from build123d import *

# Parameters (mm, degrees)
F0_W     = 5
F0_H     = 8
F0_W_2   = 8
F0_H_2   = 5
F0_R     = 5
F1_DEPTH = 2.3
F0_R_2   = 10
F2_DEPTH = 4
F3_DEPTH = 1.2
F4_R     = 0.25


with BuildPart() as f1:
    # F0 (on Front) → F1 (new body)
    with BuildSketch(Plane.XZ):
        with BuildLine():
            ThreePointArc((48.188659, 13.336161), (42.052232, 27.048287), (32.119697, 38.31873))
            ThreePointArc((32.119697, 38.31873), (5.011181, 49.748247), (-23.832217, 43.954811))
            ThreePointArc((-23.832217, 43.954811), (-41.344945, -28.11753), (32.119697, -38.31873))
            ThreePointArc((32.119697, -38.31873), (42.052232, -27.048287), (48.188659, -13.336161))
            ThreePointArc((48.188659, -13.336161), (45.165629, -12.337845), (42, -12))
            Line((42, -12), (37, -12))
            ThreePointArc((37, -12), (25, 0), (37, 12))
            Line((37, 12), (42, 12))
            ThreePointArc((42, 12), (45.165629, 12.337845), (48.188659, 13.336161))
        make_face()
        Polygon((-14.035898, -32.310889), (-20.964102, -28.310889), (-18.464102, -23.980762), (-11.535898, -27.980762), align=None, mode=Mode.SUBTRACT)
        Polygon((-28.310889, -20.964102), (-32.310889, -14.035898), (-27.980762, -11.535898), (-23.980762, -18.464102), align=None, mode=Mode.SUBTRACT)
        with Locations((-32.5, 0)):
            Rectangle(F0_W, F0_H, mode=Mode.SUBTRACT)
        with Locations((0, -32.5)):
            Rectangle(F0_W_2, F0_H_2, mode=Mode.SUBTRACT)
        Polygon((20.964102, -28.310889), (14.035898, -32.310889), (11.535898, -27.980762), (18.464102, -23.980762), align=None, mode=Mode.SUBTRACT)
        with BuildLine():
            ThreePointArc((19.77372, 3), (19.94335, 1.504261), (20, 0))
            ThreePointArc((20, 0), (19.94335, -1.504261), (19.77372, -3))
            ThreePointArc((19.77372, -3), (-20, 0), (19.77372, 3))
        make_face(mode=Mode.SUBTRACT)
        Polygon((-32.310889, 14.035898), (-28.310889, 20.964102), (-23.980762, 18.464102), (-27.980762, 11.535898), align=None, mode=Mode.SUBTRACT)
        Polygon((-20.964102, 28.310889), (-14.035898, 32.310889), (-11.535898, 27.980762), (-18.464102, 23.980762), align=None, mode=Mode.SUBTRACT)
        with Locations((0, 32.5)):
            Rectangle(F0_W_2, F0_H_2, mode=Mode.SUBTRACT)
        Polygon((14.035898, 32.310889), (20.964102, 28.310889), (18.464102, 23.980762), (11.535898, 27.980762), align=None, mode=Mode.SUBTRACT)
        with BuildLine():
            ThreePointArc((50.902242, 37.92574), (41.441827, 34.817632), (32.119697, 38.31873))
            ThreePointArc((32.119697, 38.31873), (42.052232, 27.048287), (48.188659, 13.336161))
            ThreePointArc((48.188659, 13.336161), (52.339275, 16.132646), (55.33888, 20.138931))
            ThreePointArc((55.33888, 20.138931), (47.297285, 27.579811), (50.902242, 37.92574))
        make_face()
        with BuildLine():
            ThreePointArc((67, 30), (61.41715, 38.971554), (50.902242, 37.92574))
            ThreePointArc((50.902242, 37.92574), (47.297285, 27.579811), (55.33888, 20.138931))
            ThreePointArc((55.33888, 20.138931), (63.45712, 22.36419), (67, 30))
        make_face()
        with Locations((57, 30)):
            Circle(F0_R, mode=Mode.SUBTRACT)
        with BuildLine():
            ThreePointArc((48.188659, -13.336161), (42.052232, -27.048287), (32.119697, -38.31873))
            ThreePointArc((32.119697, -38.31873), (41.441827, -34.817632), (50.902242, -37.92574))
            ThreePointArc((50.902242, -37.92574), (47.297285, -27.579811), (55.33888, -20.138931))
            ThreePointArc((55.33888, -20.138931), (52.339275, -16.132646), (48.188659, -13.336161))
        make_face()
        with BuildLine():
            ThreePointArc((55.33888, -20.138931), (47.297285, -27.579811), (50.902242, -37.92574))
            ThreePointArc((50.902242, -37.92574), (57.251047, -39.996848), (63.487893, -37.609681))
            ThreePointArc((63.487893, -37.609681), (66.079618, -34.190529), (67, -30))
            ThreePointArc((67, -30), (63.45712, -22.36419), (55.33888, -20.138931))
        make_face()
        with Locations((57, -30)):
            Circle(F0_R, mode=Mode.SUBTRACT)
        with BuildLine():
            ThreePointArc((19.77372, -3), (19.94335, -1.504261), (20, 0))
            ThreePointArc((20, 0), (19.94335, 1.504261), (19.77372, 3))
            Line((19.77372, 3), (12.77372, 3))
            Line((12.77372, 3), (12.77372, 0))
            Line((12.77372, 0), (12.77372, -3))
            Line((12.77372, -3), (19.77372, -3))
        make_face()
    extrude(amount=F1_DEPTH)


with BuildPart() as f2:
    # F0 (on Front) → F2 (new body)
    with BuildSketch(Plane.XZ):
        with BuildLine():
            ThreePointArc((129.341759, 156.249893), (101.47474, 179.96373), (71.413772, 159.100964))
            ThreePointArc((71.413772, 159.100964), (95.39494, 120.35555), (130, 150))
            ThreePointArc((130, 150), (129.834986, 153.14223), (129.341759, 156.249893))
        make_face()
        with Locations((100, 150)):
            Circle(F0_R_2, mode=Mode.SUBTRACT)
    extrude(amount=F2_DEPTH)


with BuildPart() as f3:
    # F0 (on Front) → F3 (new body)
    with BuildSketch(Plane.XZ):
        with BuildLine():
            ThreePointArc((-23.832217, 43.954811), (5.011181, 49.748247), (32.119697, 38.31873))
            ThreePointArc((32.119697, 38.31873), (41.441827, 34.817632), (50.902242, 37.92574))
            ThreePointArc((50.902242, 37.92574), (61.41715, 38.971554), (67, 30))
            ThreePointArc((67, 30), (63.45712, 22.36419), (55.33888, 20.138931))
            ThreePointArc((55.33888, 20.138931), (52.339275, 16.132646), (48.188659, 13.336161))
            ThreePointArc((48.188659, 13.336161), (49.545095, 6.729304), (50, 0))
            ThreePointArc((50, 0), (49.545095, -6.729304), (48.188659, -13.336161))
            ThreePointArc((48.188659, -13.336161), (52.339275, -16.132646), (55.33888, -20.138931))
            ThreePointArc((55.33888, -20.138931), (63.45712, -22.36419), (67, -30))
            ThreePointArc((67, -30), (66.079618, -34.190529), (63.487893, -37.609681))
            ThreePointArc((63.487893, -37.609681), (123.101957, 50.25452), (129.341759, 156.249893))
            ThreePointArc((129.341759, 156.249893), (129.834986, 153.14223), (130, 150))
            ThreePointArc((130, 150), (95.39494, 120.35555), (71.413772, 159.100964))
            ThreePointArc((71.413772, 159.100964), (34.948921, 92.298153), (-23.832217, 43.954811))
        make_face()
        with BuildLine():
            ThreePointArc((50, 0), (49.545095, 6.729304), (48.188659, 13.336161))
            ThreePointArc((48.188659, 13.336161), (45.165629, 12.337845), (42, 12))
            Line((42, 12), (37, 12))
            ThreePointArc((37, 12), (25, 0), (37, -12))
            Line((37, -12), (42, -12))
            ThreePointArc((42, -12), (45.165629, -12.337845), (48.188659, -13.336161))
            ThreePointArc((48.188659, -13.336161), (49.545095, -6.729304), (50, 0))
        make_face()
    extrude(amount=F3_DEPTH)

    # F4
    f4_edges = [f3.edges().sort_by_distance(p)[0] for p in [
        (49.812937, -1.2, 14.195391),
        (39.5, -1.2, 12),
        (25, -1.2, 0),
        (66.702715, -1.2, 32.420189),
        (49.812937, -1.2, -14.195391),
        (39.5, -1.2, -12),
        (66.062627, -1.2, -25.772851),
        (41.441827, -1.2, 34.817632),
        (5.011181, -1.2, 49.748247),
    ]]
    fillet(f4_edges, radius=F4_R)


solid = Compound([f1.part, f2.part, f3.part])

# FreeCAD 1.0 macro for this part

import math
import FreeCAD as App
import Part
import Sketcher
from FreeCAD import Vector
Q = App.Units.Quantity


def edges_at(feature, points):
    """Names of the edges that pass closest to the given points."""
    edges = feature.Shape.Edges
    near = lambda p: min(range(len(edges)), key=lambda i: edges[i].distToShape(Part.Vertex(*p))[0])
    return sorted({f"Edge{near(p) + 1}" for p in points})


def add_polygon(sketch, points):
    """Adds a closed chain of lines whose ends are joined by coincident constraints."""
    first, n = sketch.GeometryCount, len(points)
    for a, b in zip(points, points[1:] + points[:1]):
        sketch.addGeometry(Part.LineSegment(App.Vector(*a, 0), App.Vector(*b, 0)), False)
    for i in range(n):
        sketch.addConstraint(Sketcher.Constraint("Coincident", first + i, 2, first + (i + 1) % n, 1))

doc = App.newDocument("Part")
params = doc.addObject("Spreadsheet::Sheet", "Params")
for row, (alias, value) in enumerate([
    ("sketch1_diameter", "10 mm"),
    ("sketch1_radius", "15.000001 mm"),
    ("sketch1_radius2", "10.000001 mm"),
    ("sketch1_radius3", "49.999999 mm"),
    ("sketch1_radius4", "12 mm"),
    ("pad1_length", "2.3 mm"),
    ("sketch2_diameter", "20 mm"),
    ("sketch2_radius", "30 mm"),
    ("pad2_length", "4 mm"),
    ("sketch3_radius", "49.999999 mm"),
    ("sketch3_radius2", "15.000001 mm"),
    ("sketch3_radius3", "10.000001 mm"),
    ("sketch3_radius4", "12 mm"),
    ("sketch3_radius5", "30 mm"),
    ("pad3_length", "1.2 mm"),
    ("fillet_radius", "0.25 mm"),
], start=1):
    params.set(f"A{row}", alias)
    params.set(f"B{row}", "=" + value)
    params.setAlias(f"B{row}", alias)

body = doc.addObject("PartDesign::Body", "Body")

# Sketch on XZ plane
sketch1 = doc.addObject("Sketcher::SketchObject", "Sketch")
body.addObject(sketch1)
sketch1.AttachmentSupport = (doc.XZ_Plane, [""])
sketch1.MapMode = "FlatFace"
sketch1.addGeometry(Part.ArcOfCircle(Part.Circle(Vector(41.999999, 27.000003, 0), Vector(0, 0, 1), 15.000003), math.radians(-89.999997), math.radians(-65.633163)), False)  # 0
sketch1.addGeometry(Part.ArcOfCircle(Part.Circle(Vector(41.999999, 27, 0), Vector(0, 0, 1), 15.000001), math.radians(-65.633159), math.radians(-27.219758)), False)  # 1
sketch1.addGeometry(Part.ArcOfCircle(Part.Circle(Vector(56.999999, 30.000001, 0), Vector(0, 0, 1), 10.000001), math.radians(-99.561834), math.radians(-0.000005)), False)  # 2
sketch1.addGeometry(Part.ArcOfCircle(Part.Circle(Vector(56.999999, 29.999999, 0), Vector(0, 0, 1), 10.000001), math.radians(0.000003), math.radians(127.573288)), False)  # 3
sketch1.addGeometry(Part.ArcOfCircle(Part.Circle(Vector(41.755605, 49.81435, 0), Vector(0, 0, 1), 15.000001), math.radians(-129.970557), math.radians(-52.42671)), False)  # 4
sketch1.addGeometry(Part.ArcOfCircle(Part.Circle(Vector(0, 0.000001, 0), Vector(0, 0, 1), 49.999999), math.radians(50.029437), math.radians(118.466468)), False)  # 5
sketch1.addGeometry(Part.ArcOfCircle(Part.Circle(Vector(0, 0, 0), Vector(0, 0, 1), 50), math.radians(118.466467), math.radians(309.970562)), False)  # 6
sketch1.addGeometry(Part.ArcOfCircle(Part.Circle(Vector(41.755605, -49.81435, 0), Vector(0, 0, 1), 15.000001), math.radians(52.42671), math.radians(129.970557)), False)  # 7
sketch1.addGeometry(Part.ArcOfCircle(Part.Circle(Vector(57, -29.999998, 0), Vector(0, 0, 1), 10.000002), math.radians(-127.573283), math.radians(-49.549624)), False)  # 8
sketch1.addGeometry(Part.ArcOfCircle(Part.Circle(Vector(56.999998, -29.999999, 0), Vector(0, 0, 1), 10.000002), math.radians(-49.549612), math.radians(-0.000005)), False)  # 9
sketch1.addGeometry(Part.ArcOfCircle(Part.Circle(Vector(56.999999, -30.000001, 0), Vector(0, 0, 1), 10.000001), math.radians(0.000005), math.radians(99.561834)), False)  # 10
sketch1.addGeometry(Part.ArcOfCircle(Part.Circle(Vector(41.999999, -27, 0), Vector(0, 0, 1), 15.000001), math.radians(27.219758), math.radians(65.633159)), False)  # 11
sketch1.addGeometry(Part.ArcOfCircle(Part.Circle(Vector(41.999999, -27.000003, 0), Vector(0, 0, 1), 15.000003), math.radians(65.633163), math.radians(89.999997)), False)  # 12
sketch1.addGeometry(Part.LineSegment(Vector(42, -12, 0), Vector(37, -12, 0)), False)  # 13
sketch1.addGeometry(Part.ArcOfCircle(Part.Circle(Vector(37, 0, 0), Vector(0, 0, 1), 12), math.radians(90), math.radians(270)), False)  # 14
sketch1.addGeometry(Part.LineSegment(Vector(37, 12, 0), Vector(42, 12, 0)), False)  # 15
add_polygon(sketch1, [(-11.535898, -27.980762), (-14.035898, -32.310889), (-20.964102, -28.310889), (-18.464102, -23.980762)])  # lines 16-19
add_polygon(sketch1, [(4, -35), (-4, -35), (-4, -30), (4, -30)])  # lines 20-23
add_polygon(sketch1, [(-23.980762, -18.464102), (-28.310889, -20.964102), (-32.310889, -14.035898), (-27.980762, -11.535898)])  # lines 24-27
add_polygon(sketch1, [(18.464102, -23.980762), (20.964102, -28.310889), (14.035898, -32.310889), (11.535898, -27.980762)])  # lines 28-31
sketch1.addGeometry(Part.Circle(Vector(57, -30, 0), Vector(0, 0, 1), 5), False)  # 32
add_polygon(sketch1, [(-30, -4), (-35, -4), (-35, 4), (-30, 4)])  # lines 33-36
add_polygon(sketch1, [(-27.980762, 11.535898), (-32.310889, 14.035898), (-28.310889, 20.964102), (-23.980762, 18.464102)])  # lines 37-40
sketch1.addGeometry(Part.ArcOfCircle(Part.Circle(Vector(0, 0, 0), Vector(0, 0, 1), 20), math.radians(8.626927), math.radians(351.373073)), False)  # 41
sketch1.addGeometry(Part.LineSegment(Vector(19.77372, 3, 0), Vector(12.77372, 3, 0)), False)  # 42
sketch1.addGeometry(Part.LineSegment(Vector(12.77372, 3, 0), Vector(12.77372, -3, 0)), False)  # 43
sketch1.addGeometry(Part.LineSegment(Vector(12.77372, -3, 0), Vector(19.77372, -3, 0)), False)  # 44
add_polygon(sketch1, [(-18.464102, 23.980762), (-20.964102, 28.310889), (-14.035898, 32.310889), (-11.535898, 27.980762)])  # lines 45-48
add_polygon(sketch1, [(4, 30), (-4, 30), (-4, 35), (4, 35)])  # lines 49-52
add_polygon(sketch1, [(11.535898, 27.980762), (14.035898, 32.310889), (20.964102, 28.310889), (18.464102, 23.980762)])  # lines 53-56
sketch1.addGeometry(Part.Circle(Vector(57, 30, 0), Vector(0, 0, 1), 5), False)  # 57
sketch1.addConstraint([
    Sketcher.Constraint("Tangent", 0, 2, 1, 1),
    Sketcher.Constraint("Coincident", 1, 2, 2, 1),
    Sketcher.Constraint("Tangent", 2, 2, 3, 1),
    Sketcher.Constraint("Tangent", 3, 2, 4, 2),
    Sketcher.Constraint("Tangent", 4, 1, 5, 1),
    Sketcher.Constraint("Tangent", 5, 2, 6, 1),
    Sketcher.Constraint("Tangent", 6, 2, 7, 2),
    Sketcher.Constraint("Tangent", 7, 1, 8, 1),
    Sketcher.Constraint("Tangent", 8, 2, 9, 1),
    Sketcher.Constraint("Tangent", 9, 2, 10, 1),
    Sketcher.Constraint("Coincident", 10, 2, 11, 1),
    Sketcher.Constraint("Tangent", 11, 2, 12, 1),
    Sketcher.Constraint("Tangent", 12, 2, 13, 1),
    Sketcher.Constraint("Tangent", 13, 2, 14, 2),
    Sketcher.Constraint("Tangent", 14, 1, 15, 1),
    Sketcher.Constraint("Tangent", 15, 2, 0, 1),
    Sketcher.Constraint("Coincident", 41, 1, 42, 1),
    Sketcher.Constraint("Coincident", 42, 2, 43, 1),
    Sketcher.Constraint("Coincident", 43, 2, 44, 1),
    Sketcher.Constraint("Coincident", 44, 2, 41, 2),
    Sketcher.Constraint("Horizontal", 13),
    Sketcher.Constraint("Horizontal", 15),
    Sketcher.Constraint("Horizontal", 20),
    Sketcher.Constraint("Vertical", 21),
    Sketcher.Constraint("Horizontal", 22),
    Sketcher.Constraint("Vertical", 23),
    Sketcher.Constraint("Horizontal", 33),
    Sketcher.Constraint("Vertical", 34),
    Sketcher.Constraint("Horizontal", 35),
    Sketcher.Constraint("Vertical", 36),
    Sketcher.Constraint("Horizontal", 42),
    Sketcher.Constraint("Vertical", 43),
    Sketcher.Constraint("Horizontal", 44),
    Sketcher.Constraint("Horizontal", 49),
    Sketcher.Constraint("Vertical", 50),
    Sketcher.Constraint("Horizontal", 51),
    Sketcher.Constraint("Vertical", 52),
    Sketcher.Constraint("Coincident", 5, 3, -1, 1),
    Sketcher.Constraint("Coincident", 41, 3, -1, 1),
    Sketcher.Constraint("Coincident", 10, 3, 8, 3),
    Sketcher.Constraint("Coincident", 32, 3, 8, 3),
    Sketcher.Constraint("Coincident", 57, 3, 2, 3),
    Sketcher.Constraint("Equal", 2, 3),
    Sketcher.Constraint("Equal", 1, 4),
    Sketcher.Constraint("Equal", 5, 6),
    Sketcher.Constraint("Equal", 4, 7),
    Sketcher.Constraint("Equal", 3, 8),
    Sketcher.Constraint("Equal", 7, 11),
    Sketcher.Constraint("Equal", 0, 12),
    Sketcher.Constraint("Equal", 32, 57),
    Sketcher.Constraint("Symmetric", 28, 2, 45, 2, -1, 1),
    Sketcher.Constraint("Symmetric", 29, 2, 46, 2, -1, 1),
    Sketcher.Constraint("Symmetric", 30, 2, 47, 2, -1, 1),
    Sketcher.Constraint("Symmetric", 31, 2, 48, 2, -1, 1),
    Sketcher.Constraint("Symmetric", 22, 2, 49, 2, -1, 1),
    Sketcher.Constraint("Symmetric", 20, 2, 51, 2, -1, 1),
    Sketcher.Constraint("Symmetric", 16, 2, 53, 2, -1, 1),
    Sketcher.Constraint("Symmetric", 17, 2, 54, 2, -1, 1),
    Sketcher.Constraint("Symmetric", 18, 2, 55, 2, -1, 1),
    Sketcher.Constraint("Symmetric", 19, 2, 56, 2, -1, 1),
    Sketcher.Constraint("Symmetric", 17, 2, 28, 2, -2),
    Sketcher.Constraint("Symmetric", 16, 2, 29, 2, -2),
    Sketcher.Constraint("Symmetric", 19, 2, 30, 2, -2),
    Sketcher.Constraint("Symmetric", 18, 2, 31, 2, -2),
    Sketcher.Constraint("Symmetric", 2, 3, 8, 3, -1),
    Sketcher.Constraint("Symmetric", 0, 3, 11, 3, -1),
    Sketcher.Constraint("Symmetric", 0, 2, 11, 2, -1),
    Sketcher.Constraint("Symmetric", 25, 2, 37, 2, -1),
    Sketcher.Constraint("Symmetric", 24, 2, 38, 2, -1),
    Sketcher.Constraint("Symmetric", 27, 2, 39, 2, -1),
    Sketcher.Constraint("Symmetric", 26, 2, 40, 2, -1),
    Sketcher.Constraint("Perpendicular", 16, 17),
    Sketcher.Constraint("Perpendicular", 17, 18),
    Sketcher.Constraint("Perpendicular", 18, 19),
    Sketcher.Constraint("Perpendicular", 24, 25),
    Sketcher.Constraint("Perpendicular", 25, 26),
    Sketcher.Constraint("Perpendicular", 26, 27),
    Sketcher.Constraint("Parallel", 27, 28),
    Sketcher.Constraint("Horizontal", 57, 3, 2, 2),
    Sketcher.Constraint("Horizontal", 32, 3, 9, 2),
    Sketcher.Constraint("Horizontal", 9, 2, 21, 2),
    Sketcher.Constraint("Vertical", 41, 1, 44, 2),
    Sketcher.Constraint("Vertical", 21, 2, 49, 2),
    Sketcher.Constraint("Equal", 15, 33),
    Sketcher.Constraint("Equal", 35, 21),
    Sketcher.Constraint("Equal", 51, 34),
    Sketcher.Constraint("Equal", 18, 24),
    Sketcher.Constraint("Equal", 19, 25),
    Sketcher.Constraint("Diameter", 32, Q("10 mm")),
    Sketcher.Constraint("Radius", 1, Q("15.000001 mm")),
    Sketcher.Constraint("Radius", 2, Q("10.000001 mm")),
    Sketcher.Constraint("Radius", 5, Q("49.999999 mm")),
    Sketcher.Constraint("Radius", 14, Q("12 mm")),
    Sketcher.Constraint("Radius", 41, Q("20 mm")),
    Sketcher.Constraint("DistanceX", 13, 2, 13, 1, Q("5 mm")),
    Sketcher.Constraint("DistanceX", 20, 2, 20, 1, Q("8 mm")),
    Sketcher.Constraint("DistanceX", 42, 2, 42, 1, Q("7 mm")),
    Sketcher.Constraint("DistanceY", 43, 2, 43, 1, Q("6 mm")),
    Sketcher.Constraint("Angle", 16, Q("-120 deg")),
    Sketcher.Constraint("Distance", 16, Q("5 mm")),
    Sketcher.Constraint("Distance", 17, Q("8.000001 mm")),
    Sketcher.Constraint("DistanceX", -1, 1, 0, 3, Q("41.999999 mm")),
    Sketcher.Constraint("DistanceX", -1, 1, 2, 3, Q("56.999999 mm")),
    Sketcher.Constraint("DistanceY", -1, 1, 2, 3, Q("30.000001 mm")),
    Sketcher.Constraint("DistanceX", 33, 2, -1, 1, Q("35 mm")),
    Sketcher.Constraint("DistanceY", 33, 2, -1, 1, Q("4 mm")),
    Sketcher.Constraint("DistanceX", -1, 1, 0, 2, Q("48.188659 mm")),
    Sketcher.Constraint("DistanceY", -1, 1, 5, 2, Q("43.954811 mm")),
    Sketcher.Constraint("DistanceY", 8, 2, -1, 1, Q("37.609681 mm")),
    Sketcher.Constraint("DistanceY", 16, 2, -1, 1, Q("32.310889 mm")),
    Sketcher.Constraint("DistanceX", 24, 2, -1, 1, Q("28.310889 mm")),
    Sketcher.Constraint("DistanceX", 16, 2, -1, 1, Q("14.035898 mm")),
    Sketcher.Constraint("DistanceY", 24, 2, -1, 1, Q("20.964102 mm")),
])
sketch1.setExpression("Constraints[124]", "Params.sketch1_diameter")
sketch1.setExpression("Constraints[125]", "Params.sketch1_radius")
sketch1.setExpression("Constraints[126]", "Params.sketch1_radius2")
sketch1.setExpression("Constraints[127]", "Params.sketch1_radius3")
sketch1.setExpression("Constraints[128]", "Params.sketch1_radius4")
pad1 = doc.addObject("PartDesign::Pad", "Pad")
body.addObject(pad1)
pad1.Profile = sketch1
pad1.setExpression("Length", "Params.pad1_length")
body2 = doc.addObject("PartDesign::Body", "Body001")

# Sketch on XZ plane
sketch2 = doc.addObject("Sketcher::SketchObject", "Sketch001")
body2.addObject(sketch2)
sketch2.AttachmentSupport = (doc.getObject("XZ_Plane001"), [""])
sketch2.MapMode = "FlatFace"
sketch2.addGeometry([
    Part.ArcOfCircle(Part.Circle(Vector(100, 150, 0), Vector(0, 0, 1), 30), math.radians(12.024491), math.radians(162.340146)),
    Part.ArcOfCircle(Part.Circle(Vector(100, 150, 0), Vector(0, 0, 1), 30), math.radians(162.340146), math.radians(360)),
    Part.ArcOfCircle(Part.Circle(Vector(100.000022, 150.000001, 0), Vector(0, 0, 1), 29.999978), math.radians(-0.000002), math.radians(12.024497)),
    Part.Circle(Vector(100, 150, 0), Vector(0, 0, 1), 10),
], False)
sketch2.addConstraint([
    Sketcher.Constraint("Coincident", 0, 2, 1, 1),
    Sketcher.Constraint("Coincident", 1, 2, 2, 1),
    Sketcher.Constraint("Coincident", 2, 2, 0, 1),
    Sketcher.Constraint("Coincident", 1, 3, 0, 3),
    Sketcher.Constraint("Coincident", 3, 3, 0, 3),
    Sketcher.Constraint("Diameter", 3, Q("20 mm")),
    Sketcher.Constraint("Radius", 0, Q("30 mm")),
    Sketcher.Constraint("DistanceX", -1, 1, 0, 3, Q("100 mm")),
    Sketcher.Constraint("DistanceY", -1, 1, 0, 3, Q("150 mm")),
    Sketcher.Constraint("DistanceY", -1, 1, 2, 3, Q("150.000001 mm")),
    Sketcher.Constraint("DistanceY", -1, 1, 1, 2, Q("150 mm")),
    Sketcher.Constraint("DistanceX", -1, 1, 0, 2, Q("71.413772 mm")),
    Sketcher.Constraint("DistanceX", -1, 1, 2, 2, Q("129.341759 mm")),
])
sketch2.setExpression("Constraints[5]", "Params.sketch2_diameter")
sketch2.setExpression("Constraints[6]", "Params.sketch2_radius")
pad2 = doc.addObject("PartDesign::Pad", "Pad001")
body2.addObject(pad2)
pad2.Profile = sketch2
pad2.setExpression("Length", "Params.pad2_length")
body3 = doc.addObject("PartDesign::Body", "Body002")

# Sketch on XZ plane
sketch3 = doc.addObject("Sketcher::SketchObject", "Sketch002")
body3.addObject(sketch3)
sketch3.AttachmentSupport = (doc.getObject("XZ_Plane002"), [""])
sketch3.MapMode = "FlatFace"
sketch3.addGeometry([
    Part.ArcOfCircle(Part.Circle(Vector(0, 0.000001, 0), Vector(0, 0, 1), 49.999999), math.radians(50.029437), math.radians(118.466468)),  # 0
    Part.ArcOfCircle(Part.Circle(Vector(41.755605, 49.81435, 0), Vector(0, 0, 1), 15.000001), math.radians(-129.970557), math.radians(-52.42671)),  # 1
    Part.ArcOfCircle(Part.Circle(Vector(56.999999, 29.999999, 0), Vector(0, 0, 1), 10.000001), math.radians(0.000003), math.radians(127.573288)),  # 2
    Part.ArcOfCircle(Part.Circle(Vector(56.999999, 30.000001, 0), Vector(0, 0, 1), 10.000001), math.radians(-99.561834), math.radians(-0.000005)),  # 3
    Part.ArcOfCircle(Part.Circle(Vector(41.999999, 27, 0), Vector(0, 0, 1), 15.000001), math.radians(-65.633159), math.radians(-27.219758)),  # 4
    Part.ArcOfCircle(Part.Circle(Vector(41.999999, 27.000003, 0), Vector(0, 0, 1), 15.000003), math.radians(-89.999997), math.radians(-65.633163)),  # 5
    Part.LineSegment(Vector(42, 12, 0), Vector(37, 12, 0)),  # 6
    Part.ArcOfCircle(Part.Circle(Vector(37, 0, 0), Vector(0, 0, 1), 12), math.radians(90), math.radians(270)),  # 7
    Part.LineSegment(Vector(37, -12, 0), Vector(42, -12, 0)),  # 8
    Part.ArcOfCircle(Part.Circle(Vector(41.999999, -27.000003, 0), Vector(0, 0, 1), 15.000003), math.radians(65.633163), math.radians(89.999997)),  # 9
    Part.ArcOfCircle(Part.Circle(Vector(41.999999, -27, 0), Vector(0, 0, 1), 15.000001), math.radians(27.219758), math.radians(65.633159)),  # 10
    Part.ArcOfCircle(Part.Circle(Vector(56.999999, -30.000001, 0), Vector(0, 0, 1), 10.000001), math.radians(0.000005), math.radians(99.561834)),  # 11
    Part.ArcOfCircle(Part.Circle(Vector(56.999998, -29.999999, 0), Vector(0, 0, 1), 10.000002), math.radians(-49.549612), math.radians(-0.000005)),  # 12
    Part.ArcOfCircle(Part.Circle(Vector(-66.269966, 114.583936, 0), Vector(0, 0, 1), 199.999997), math.radians(-49.549617), math.radians(12.024492)),  # 13
    Part.ArcOfCircle(Part.Circle(Vector(100.000022, 150.000001, 0), Vector(0, 0, 1), 29.999978), math.radians(-0.000002), math.radians(12.024497)),  # 14
    Part.ArcOfCircle(Part.Circle(Vector(100, 150, 0), Vector(0, 0, 1), 30), math.radians(162.340146), math.radians(360)),  # 15
    Part.ArcOfCircle(Part.Circle(Vector(-119.161093, 219.774063, 0), Vector(0, 0, 1), 200.00001), math.radians(-61.533532), math.radians(-17.659854)),  # 16
], False)
sketch3.addConstraint([
    Sketcher.Constraint("Tangent", 0, 1, 1, 1),
    Sketcher.Constraint("Tangent", 1, 2, 2, 2),
    Sketcher.Constraint("Tangent", 2, 1, 3, 2),
    Sketcher.Constraint("Coincident", 3, 1, 4, 2),
    Sketcher.Constraint("Tangent", 4, 1, 5, 2),
    Sketcher.Constraint("Tangent", 5, 1, 6, 1),
    Sketcher.Constraint("Tangent", 6, 2, 7, 1),
    Sketcher.Constraint("Tangent", 7, 2, 8, 1),
    Sketcher.Constraint("Tangent", 8, 2, 9, 2),
    Sketcher.Constraint("Tangent", 9, 1, 10, 2),
    Sketcher.Constraint("Coincident", 10, 1, 11, 2),
    Sketcher.Constraint("Tangent", 11, 1, 12, 2),
    Sketcher.Constraint("Tangent", 12, 1, 13, 1),
    Sketcher.Constraint("Tangent", 13, 2, 14, 2),
    Sketcher.Constraint("Tangent", 14, 1, 15, 2),
    Sketcher.Constraint("Tangent", 15, 1, 16, 2),
    Sketcher.Constraint("Tangent", 16, 1, 0, 2),
    Sketcher.Constraint("Horizontal", 6),
    Sketcher.Constraint("Horizontal", 8),
    Sketcher.Constraint("Coincident", 0, 3, -1, 1),
    Sketcher.Constraint("Equal", 2, 3),
    Sketcher.Constraint("Equal", 1, 4),
    Sketcher.Constraint("Equal", 5, 9),
    Sketcher.Constraint("Equal", 4, 10),
    Sketcher.Constraint("Equal", 3, 11),
    Sketcher.Constraint("Equal", 11, 12),
    Sketcher.Constraint("Symmetric", 4, 3, 9, 3, -1),
    Sketcher.Constraint("Symmetric", 2, 3, 11, 3, -1),
    Sketcher.Constraint("Symmetric", 4, 1, 9, 1, -1),
    Sketcher.Constraint("Horizontal", 3, 3, 2, 1),
    Sketcher.Constraint("Horizontal", 12, 3, 11, 1),
    Sketcher.Constraint("Horizontal", 15, 3, 14, 1),
    Sketcher.Constraint("Radius", 0, Q("49.999999 mm")),
    Sketcher.Constraint("Radius", 1, Q("15.000001 mm")),
    Sketcher.Constraint("Radius", 2, Q("10.000001 mm")),
    Sketcher.Constraint("Radius", 7, Q("12 mm")),
    Sketcher.Constraint("Radius", 15, Q("30 mm")),
    Sketcher.Constraint("DistanceX", 6, 2, 6, 1, Q("5 mm")),
    Sketcher.Constraint("DistanceX", -1, 1, 2, 3, Q("56.999999 mm")),
    Sketcher.Constraint("DistanceY", -1, 1, 2, 3, Q("29.999999 mm")),
    Sketcher.Constraint("DistanceX", -1, 1, 4, 3, Q("41.999999 mm")),
    Sketcher.Constraint("DistanceY", -1, 1, 14, 3, Q("150.000001 mm")),
    Sketcher.Constraint("DistanceX", -1, 1, 15, 3, Q("100 mm")),
    Sketcher.Constraint("Radius", 14, Q("29.999978 mm")),
    Sketcher.Constraint("Radius", 16, Q("200.00001 mm")),
    Sketcher.Constraint("Radius", 13, Q("199.999997 mm")),
    Sketcher.Constraint("DistanceX", -1, 1, 4, 1, Q("48.188659 mm")),
])
sketch3.setExpression("Constraints[32]", "Params.sketch3_radius")
sketch3.setExpression("Constraints[33]", "Params.sketch3_radius2")
sketch3.setExpression("Constraints[34]", "Params.sketch3_radius3")
sketch3.setExpression("Constraints[35]", "Params.sketch3_radius4")
sketch3.setExpression("Constraints[36]", "Params.sketch3_radius5")
pad3 = doc.addObject("PartDesign::Pad", "Pad002")
body3.addObject(pad3)
pad3.Profile = sketch3
pad3.setExpression("Length", "Params.pad3_length")
doc.recompute()

fillet = doc.addObject("PartDesign::Fillet", "Fillet")
body3.addObject(fillet)
fillet.Base = (pad3, edges_at(pad3, [
    (52.339, -1.2, 16.133),
    (39.5, -1.2, 12),
    (25, -1.2, 0),
    (61.417, -1.2, 38.972),
    (52.339, -1.2, -16.133),
    (39.5, -1.2, -12),
    (63.457, -1.2, -22.364),
    (41.442, -1.2, 34.818),
    (5.011, -1.2, 49.748),
]))
fillet.setExpression("Radius", "Params.fillet_radius")

doc.recompute()
